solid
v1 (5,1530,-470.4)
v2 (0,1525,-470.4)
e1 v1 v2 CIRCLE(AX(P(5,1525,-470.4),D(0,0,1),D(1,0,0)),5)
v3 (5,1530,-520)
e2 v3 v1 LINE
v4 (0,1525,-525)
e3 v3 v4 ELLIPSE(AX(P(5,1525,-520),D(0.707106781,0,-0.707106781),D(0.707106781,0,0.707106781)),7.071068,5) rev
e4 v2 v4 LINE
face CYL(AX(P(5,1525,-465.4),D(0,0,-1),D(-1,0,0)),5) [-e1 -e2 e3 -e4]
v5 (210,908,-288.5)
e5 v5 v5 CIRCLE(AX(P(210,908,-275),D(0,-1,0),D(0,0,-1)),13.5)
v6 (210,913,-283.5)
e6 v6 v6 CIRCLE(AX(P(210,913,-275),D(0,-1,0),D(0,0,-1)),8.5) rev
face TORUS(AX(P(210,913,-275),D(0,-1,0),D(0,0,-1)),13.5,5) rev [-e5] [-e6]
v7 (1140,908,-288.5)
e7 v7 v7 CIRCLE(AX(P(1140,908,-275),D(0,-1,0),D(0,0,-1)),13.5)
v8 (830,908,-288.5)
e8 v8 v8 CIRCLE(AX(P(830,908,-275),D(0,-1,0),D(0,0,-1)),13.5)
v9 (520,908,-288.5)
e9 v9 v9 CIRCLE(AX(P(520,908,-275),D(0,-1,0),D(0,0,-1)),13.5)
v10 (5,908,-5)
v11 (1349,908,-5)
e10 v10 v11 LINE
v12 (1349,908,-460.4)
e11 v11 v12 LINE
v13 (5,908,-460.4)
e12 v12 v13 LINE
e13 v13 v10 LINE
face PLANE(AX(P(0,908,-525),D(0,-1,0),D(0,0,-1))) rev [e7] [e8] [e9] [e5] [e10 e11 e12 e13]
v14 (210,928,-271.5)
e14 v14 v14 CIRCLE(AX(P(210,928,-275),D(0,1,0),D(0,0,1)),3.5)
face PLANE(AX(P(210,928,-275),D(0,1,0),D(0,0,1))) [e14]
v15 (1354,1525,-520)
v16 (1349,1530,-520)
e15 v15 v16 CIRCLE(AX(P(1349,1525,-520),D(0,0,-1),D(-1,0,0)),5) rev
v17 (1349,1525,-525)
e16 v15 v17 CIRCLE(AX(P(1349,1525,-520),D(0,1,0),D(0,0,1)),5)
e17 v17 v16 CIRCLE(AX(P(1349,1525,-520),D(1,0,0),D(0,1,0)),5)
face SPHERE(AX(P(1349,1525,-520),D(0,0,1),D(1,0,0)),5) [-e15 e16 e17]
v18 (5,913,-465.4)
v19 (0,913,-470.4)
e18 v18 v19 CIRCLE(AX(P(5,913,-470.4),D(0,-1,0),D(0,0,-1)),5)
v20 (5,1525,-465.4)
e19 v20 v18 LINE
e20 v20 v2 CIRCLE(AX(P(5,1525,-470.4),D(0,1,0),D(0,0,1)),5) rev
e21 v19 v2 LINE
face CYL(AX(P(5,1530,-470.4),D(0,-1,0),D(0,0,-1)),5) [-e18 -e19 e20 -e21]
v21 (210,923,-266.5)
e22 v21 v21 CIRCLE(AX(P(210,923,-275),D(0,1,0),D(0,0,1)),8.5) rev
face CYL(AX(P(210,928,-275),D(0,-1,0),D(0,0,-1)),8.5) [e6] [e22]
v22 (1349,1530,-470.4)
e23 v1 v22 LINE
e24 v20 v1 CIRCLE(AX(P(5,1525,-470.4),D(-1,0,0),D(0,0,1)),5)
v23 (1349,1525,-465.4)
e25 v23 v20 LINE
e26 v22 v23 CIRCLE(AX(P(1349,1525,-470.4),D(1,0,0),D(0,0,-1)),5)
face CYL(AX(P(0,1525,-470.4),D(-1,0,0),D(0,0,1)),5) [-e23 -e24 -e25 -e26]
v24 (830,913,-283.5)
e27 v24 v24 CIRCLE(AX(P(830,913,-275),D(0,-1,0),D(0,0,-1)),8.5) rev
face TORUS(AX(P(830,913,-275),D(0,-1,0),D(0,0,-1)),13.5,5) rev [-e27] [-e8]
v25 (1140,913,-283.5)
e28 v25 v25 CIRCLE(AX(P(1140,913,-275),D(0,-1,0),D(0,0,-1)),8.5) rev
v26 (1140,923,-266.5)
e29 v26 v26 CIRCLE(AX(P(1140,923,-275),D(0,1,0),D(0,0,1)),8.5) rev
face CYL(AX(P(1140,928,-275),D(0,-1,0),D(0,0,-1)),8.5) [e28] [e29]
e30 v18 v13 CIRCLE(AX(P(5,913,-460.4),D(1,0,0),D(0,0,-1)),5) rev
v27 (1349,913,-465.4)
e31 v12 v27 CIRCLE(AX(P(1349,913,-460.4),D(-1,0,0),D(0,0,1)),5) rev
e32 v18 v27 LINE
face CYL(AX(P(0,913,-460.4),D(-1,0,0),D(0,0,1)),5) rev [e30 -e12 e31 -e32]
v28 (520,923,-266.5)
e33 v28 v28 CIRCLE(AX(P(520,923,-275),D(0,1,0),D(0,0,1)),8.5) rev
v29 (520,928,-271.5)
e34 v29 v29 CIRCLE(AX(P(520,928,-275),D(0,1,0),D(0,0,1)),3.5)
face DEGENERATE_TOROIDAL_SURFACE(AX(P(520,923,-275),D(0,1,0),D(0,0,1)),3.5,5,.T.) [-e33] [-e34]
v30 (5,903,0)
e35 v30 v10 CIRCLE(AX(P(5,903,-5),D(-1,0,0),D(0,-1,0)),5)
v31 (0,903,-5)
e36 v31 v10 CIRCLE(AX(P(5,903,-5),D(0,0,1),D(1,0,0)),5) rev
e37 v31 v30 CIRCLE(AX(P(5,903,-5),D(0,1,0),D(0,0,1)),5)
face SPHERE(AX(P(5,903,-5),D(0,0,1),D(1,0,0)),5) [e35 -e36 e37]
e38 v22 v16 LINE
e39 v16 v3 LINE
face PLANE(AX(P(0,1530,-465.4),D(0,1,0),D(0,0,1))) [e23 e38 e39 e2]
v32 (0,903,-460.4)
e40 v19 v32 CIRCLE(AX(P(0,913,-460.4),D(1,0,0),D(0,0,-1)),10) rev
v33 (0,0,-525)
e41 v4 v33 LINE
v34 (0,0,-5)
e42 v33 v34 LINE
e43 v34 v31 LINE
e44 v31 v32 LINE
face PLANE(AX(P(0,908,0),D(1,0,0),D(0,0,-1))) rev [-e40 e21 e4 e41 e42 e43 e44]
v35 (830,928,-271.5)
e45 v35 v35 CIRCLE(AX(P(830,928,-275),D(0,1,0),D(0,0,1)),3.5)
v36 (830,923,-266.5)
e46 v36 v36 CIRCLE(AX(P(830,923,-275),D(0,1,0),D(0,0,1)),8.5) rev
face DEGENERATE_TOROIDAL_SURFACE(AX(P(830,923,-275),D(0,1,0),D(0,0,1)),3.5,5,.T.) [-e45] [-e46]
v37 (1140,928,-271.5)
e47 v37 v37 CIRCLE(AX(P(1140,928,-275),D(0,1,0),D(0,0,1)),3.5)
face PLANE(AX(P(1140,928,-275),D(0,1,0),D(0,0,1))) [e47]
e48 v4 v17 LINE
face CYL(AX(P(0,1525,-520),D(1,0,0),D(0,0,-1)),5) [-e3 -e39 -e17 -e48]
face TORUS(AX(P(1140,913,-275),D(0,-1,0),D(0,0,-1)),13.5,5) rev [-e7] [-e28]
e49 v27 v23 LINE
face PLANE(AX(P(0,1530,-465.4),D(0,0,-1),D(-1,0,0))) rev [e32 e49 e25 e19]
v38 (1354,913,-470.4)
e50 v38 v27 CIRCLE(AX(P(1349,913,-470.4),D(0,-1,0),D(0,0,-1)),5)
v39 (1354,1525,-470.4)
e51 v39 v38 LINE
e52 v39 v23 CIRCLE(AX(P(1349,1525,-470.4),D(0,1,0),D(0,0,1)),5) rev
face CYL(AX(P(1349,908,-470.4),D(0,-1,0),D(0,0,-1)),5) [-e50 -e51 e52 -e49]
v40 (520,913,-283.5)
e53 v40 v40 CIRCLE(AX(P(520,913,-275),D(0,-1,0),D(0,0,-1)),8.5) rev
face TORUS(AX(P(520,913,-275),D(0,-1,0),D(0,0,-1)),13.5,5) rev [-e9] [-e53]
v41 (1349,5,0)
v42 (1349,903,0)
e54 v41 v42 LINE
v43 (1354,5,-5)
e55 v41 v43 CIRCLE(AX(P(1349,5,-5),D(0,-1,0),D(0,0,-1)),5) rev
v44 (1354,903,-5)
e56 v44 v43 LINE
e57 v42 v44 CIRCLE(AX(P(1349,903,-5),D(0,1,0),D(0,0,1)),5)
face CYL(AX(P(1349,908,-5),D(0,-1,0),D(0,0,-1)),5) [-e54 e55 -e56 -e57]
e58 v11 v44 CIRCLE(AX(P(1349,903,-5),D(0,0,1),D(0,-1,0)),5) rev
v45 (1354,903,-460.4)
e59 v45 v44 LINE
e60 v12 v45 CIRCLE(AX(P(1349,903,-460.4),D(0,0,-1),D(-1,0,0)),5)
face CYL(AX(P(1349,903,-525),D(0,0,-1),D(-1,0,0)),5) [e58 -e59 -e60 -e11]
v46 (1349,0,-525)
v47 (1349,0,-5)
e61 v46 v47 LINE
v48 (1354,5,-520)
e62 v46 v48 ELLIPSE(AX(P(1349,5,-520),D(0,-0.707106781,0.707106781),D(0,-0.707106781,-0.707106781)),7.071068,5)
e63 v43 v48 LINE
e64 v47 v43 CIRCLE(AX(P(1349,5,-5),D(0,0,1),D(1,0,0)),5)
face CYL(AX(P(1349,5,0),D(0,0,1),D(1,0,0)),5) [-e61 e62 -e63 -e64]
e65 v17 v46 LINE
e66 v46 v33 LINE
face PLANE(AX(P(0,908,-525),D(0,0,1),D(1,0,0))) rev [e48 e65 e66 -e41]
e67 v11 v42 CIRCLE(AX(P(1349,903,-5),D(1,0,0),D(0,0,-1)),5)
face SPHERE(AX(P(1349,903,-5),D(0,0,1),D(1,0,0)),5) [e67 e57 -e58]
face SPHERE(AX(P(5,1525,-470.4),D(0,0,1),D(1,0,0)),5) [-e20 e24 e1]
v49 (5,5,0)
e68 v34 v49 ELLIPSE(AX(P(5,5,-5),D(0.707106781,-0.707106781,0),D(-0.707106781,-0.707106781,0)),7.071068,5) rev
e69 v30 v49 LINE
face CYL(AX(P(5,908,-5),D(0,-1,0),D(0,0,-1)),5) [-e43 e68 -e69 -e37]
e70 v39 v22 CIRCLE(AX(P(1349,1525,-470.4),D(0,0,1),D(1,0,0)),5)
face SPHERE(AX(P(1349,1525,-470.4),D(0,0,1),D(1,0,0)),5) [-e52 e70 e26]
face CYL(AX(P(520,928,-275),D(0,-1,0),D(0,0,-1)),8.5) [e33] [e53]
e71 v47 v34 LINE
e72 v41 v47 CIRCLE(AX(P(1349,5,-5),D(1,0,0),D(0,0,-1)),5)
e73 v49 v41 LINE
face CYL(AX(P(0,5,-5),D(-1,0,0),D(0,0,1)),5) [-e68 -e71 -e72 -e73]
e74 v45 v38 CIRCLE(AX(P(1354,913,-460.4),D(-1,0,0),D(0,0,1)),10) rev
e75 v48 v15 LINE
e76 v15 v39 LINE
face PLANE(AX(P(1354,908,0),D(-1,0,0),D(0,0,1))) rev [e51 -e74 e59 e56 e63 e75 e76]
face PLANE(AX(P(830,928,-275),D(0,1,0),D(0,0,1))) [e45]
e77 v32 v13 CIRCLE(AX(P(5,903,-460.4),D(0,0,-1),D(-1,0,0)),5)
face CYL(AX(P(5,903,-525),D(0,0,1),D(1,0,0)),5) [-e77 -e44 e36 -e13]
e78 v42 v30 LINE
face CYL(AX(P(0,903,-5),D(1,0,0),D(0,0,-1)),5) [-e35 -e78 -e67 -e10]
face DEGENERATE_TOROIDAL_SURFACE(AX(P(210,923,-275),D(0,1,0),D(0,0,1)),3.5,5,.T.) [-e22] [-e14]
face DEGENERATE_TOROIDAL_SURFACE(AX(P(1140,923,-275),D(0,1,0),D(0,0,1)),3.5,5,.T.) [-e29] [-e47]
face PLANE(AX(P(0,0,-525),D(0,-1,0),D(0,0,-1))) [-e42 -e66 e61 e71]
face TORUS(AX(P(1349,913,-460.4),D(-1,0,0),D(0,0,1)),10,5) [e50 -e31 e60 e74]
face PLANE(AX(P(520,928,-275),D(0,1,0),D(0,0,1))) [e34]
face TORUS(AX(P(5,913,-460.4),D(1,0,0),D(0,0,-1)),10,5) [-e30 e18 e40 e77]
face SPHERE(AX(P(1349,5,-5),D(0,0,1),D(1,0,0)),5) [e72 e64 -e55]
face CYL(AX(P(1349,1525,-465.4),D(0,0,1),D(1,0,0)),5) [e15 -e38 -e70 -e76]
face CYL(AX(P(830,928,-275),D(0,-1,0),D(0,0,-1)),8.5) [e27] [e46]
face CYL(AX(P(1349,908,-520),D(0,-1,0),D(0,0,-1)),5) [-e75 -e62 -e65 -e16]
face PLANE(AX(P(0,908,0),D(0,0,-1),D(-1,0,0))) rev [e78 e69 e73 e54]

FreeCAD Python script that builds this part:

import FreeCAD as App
import Part
import Sketcher
from FreeCAD import Vector
Q = App.Units.Quantity


def edges_at(feature, points):
    """Names of the edges that pass closest to the given points."""
    edges = feature.Shape.Edges
    near = lambda p: min(range(len(edges)), key=lambda i: edges[i].distToShape(Part.Vertex(*p))[0])
    return sorted({f"Edge{near(p) + 1}" for p in points})

doc = App.newDocument("Part")
body = doc.addObject("PartDesign::Body", "Body")

sketch1 = body.newObject("Sketcher::SketchObject", "Sketch")
sketch1.AttachmentSupport = (doc.getObject("XZ_Plane"), [""])
sketch1.MapMode = "FlatFace"
sketch1.addGeometry(Part.LineSegment(Vector(0, -525, 0), Vector(0, 0, 0)), False)
sketch1.addGeometry(Part.LineSegment(Vector(0, 0, 0), Vector(1354, 0, 0)), False)
sketch1.addGeometry(Part.LineSegment(Vector(1354, 0, 0), Vector(1354, -525, 0)), False)
sketch1.addGeometry(Part.LineSegment(Vector(1354, -525, 0), Vector(0, -525, 0)), False)
sketch1.addConstraint(Sketcher.Constraint("Coincident", 0, 2, 1, 1))
sketch1.addConstraint(Sketcher.Constraint("Coincident", 1, 2, 2, 1))
sketch1.addConstraint(Sketcher.Constraint("Coincident", 2, 2, 3, 1))
sketch1.addConstraint(Sketcher.Constraint("Coincident", 3, 2, 0, 1))
sketch1.addConstraint(Sketcher.Constraint("Vertical", 0))
sketch1.addConstraint(Sketcher.Constraint("Horizontal", 1))
sketch1.addConstraint(Sketcher.Constraint("Vertical", 2))
sketch1.addConstraint(Sketcher.Constraint("Horizontal", 3))
sketch1.addConstraint(Sketcher.Constraint("Coincident", 0, 2, -1, 1))
sketch1.addConstraint(Sketcher.Constraint("DistanceX", 1, 1, 1, 2, Q("1354 mm")))
sketch1.addConstraint(Sketcher.Constraint("DistanceY", 0, 1, 0, 2, Q("525 mm")))
pad1 = body.newObject("PartDesign::Pad", "Pad")
pad1.Profile = sketch1
pad1.Length = 908
pad1.Reversed = True

sketch2 = body.newObject("Sketcher::SketchObject", "Sketch001")
sketch2.AttachmentSupport = (doc.getObject("XZ_Plane"), [""])
sketch2.MapMode = "FlatFace"
sketch2.AttachmentOffset = App.Placement(Vector(0, 0, -908), App.Rotation())
sketch2.addGeometry(Part.LineSegment(Vector(0, -525, 0), Vector(0, -465.4, 0)), False)
sketch2.addGeometry(Part.LineSegment(Vector(0, -465.4, 0), Vector(1354, -465.4, 0)), False)
sketch2.addGeometry(Part.LineSegment(Vector(1354, -465.4, 0), Vector(1354, -525, 0)), False)
sketch2.addGeometry(Part.LineSegment(Vector(1354, -525, 0), Vector(0, -525, 0)), False)
sketch2.addConstraint(Sketcher.Constraint("Coincident", 0, 2, 1, 1))
sketch2.addConstraint(Sketcher.Constraint("Coincident", 1, 2, 2, 1))
sketch2.addConstraint(Sketcher.Constraint("Coincident", 2, 2, 3, 1))
sketch2.addConstraint(Sketcher.Constraint("Coincident", 3, 2, 0, 1))
sketch2.addConstraint(Sketcher.Constraint("Vertical", 0))
sketch2.addConstraint(Sketcher.Constraint("Horizontal", 1))
sketch2.addConstraint(Sketcher.Constraint("Vertical", 2))
sketch2.addConstraint(Sketcher.Constraint("Horizontal", 3))
sketch2.addConstraint(Sketcher.Constraint("PointOnObject", 0, 2, -2))
sketch2.addConstraint(Sketcher.Constraint("DistanceX", 1, 1, 1, 2, Q("1354 mm")))
sketch2.addConstraint(Sketcher.Constraint("DistanceY", 0, 1, 0, 2, Q("59.6 mm")))
sketch2.addConstraint(Sketcher.Constraint("DistanceY", 2, 2, -1, 1, Q("525 mm")))
pad2 = body.newObject("PartDesign::Pad", "Pad001")
pad2.Profile = sketch2
pad2.Length = 622
pad2.Reversed = True

sketch3 = body.newObject("Sketcher::SketchObject", "Sketch002")
sketch3.AttachmentSupport = (doc.getObject("XZ_Plane"), [""])
sketch3.MapMode = "FlatFace"
sketch3.AttachmentOffset = App.Placement(Vector(0, 0, -908), App.Rotation())
sketch3.addGeometry(Part.Circle(Vector(210, -275, 0), Vector(0, 0, 1), 8.5), False)
sketch3.addGeometry(Part.Circle(Vector(520, -275, 0), Vector(0, 0, 1), 8.5), False)
sketch3.addGeometry(Part.Circle(Vector(830, -275, 0), Vector(0, 0, 1), 8.5), False)
sketch3.addGeometry(Part.Circle(Vector(1140, -275, 0), Vector(0, 0, 1), 8.5), False)
sketch3.addConstraint(Sketcher.Constraint("Equal", 0, 1))
sketch3.addConstraint(Sketcher.Constraint("Equal", 1, 2))
sketch3.addConstraint(Sketcher.Constraint("Equal", 2, 3))
sketch3.addConstraint(Sketcher.Constraint("Horizontal", 0, 3, 1, 3))
sketch3.addConstraint(Sketcher.Constraint("Horizontal", 1, 3, 2, 3))
sketch3.addConstraint(Sketcher.Constraint("Horizontal", 2, 3, 3, 3))
sketch3.addConstraint(Sketcher.Constraint("Diameter", 0, Q("17 mm")))
sketch3.addConstraint(Sketcher.Constraint("DistanceX", -1, 1, 0, 3, Q("210 mm")))
sketch3.addConstraint(Sketcher.Constraint("DistanceY", 0, 3, -1, 1, Q("275 mm")))
sketch3.addConstraint(Sketcher.Constraint("DistanceX", -1, 1, 1, 3, Q("520 mm")))
sketch3.addConstraint(Sketcher.Constraint("DistanceX", -1, 1, 2, 3, Q("830 mm")))
sketch3.addConstraint(Sketcher.Constraint("DistanceX", -1, 1, 3, 3, Q("1140 mm")))
pad3 = body.newObject("PartDesign::Pad", "Pad002")
pad3.Profile = sketch3
pad3.Length = 20
pad3.Reversed = True
doc.recompute()

fillet = body.newObject("PartDesign::Fillet", "Fillet")
fillet.Base = (pad3, edges_at(pad3, [
    (1354, 908, -232.7),
    (0, 908, -232.7),
    (677, 908, -465.4),
    (0, 1219, -465.4),
    (1354, 1219, -465.4),
    (0, 1530, -495.2),
    (677, 1530, -465.4),
    (1354, 1530, -495.2),
    (677, 1530, -525),
    (210, 908, -266.5),
    (210, 928, -266.5),
    (520, 908, -266.5),
    (520, 928, -266.5),
    (830, 908, -266.5),
    (830, 928, -266.5),
    (1140, 908, -266.5),
    (1140, 928, -266.5),
    (1354, 0, -262.5),
    (677, 0, 0),
    (677, 908, 0),
    (1354, 765, -525),
    (1354, 454, 0),
    (0, 454, 0),
]))
fillet.Radius = 5

doc.recompute()
